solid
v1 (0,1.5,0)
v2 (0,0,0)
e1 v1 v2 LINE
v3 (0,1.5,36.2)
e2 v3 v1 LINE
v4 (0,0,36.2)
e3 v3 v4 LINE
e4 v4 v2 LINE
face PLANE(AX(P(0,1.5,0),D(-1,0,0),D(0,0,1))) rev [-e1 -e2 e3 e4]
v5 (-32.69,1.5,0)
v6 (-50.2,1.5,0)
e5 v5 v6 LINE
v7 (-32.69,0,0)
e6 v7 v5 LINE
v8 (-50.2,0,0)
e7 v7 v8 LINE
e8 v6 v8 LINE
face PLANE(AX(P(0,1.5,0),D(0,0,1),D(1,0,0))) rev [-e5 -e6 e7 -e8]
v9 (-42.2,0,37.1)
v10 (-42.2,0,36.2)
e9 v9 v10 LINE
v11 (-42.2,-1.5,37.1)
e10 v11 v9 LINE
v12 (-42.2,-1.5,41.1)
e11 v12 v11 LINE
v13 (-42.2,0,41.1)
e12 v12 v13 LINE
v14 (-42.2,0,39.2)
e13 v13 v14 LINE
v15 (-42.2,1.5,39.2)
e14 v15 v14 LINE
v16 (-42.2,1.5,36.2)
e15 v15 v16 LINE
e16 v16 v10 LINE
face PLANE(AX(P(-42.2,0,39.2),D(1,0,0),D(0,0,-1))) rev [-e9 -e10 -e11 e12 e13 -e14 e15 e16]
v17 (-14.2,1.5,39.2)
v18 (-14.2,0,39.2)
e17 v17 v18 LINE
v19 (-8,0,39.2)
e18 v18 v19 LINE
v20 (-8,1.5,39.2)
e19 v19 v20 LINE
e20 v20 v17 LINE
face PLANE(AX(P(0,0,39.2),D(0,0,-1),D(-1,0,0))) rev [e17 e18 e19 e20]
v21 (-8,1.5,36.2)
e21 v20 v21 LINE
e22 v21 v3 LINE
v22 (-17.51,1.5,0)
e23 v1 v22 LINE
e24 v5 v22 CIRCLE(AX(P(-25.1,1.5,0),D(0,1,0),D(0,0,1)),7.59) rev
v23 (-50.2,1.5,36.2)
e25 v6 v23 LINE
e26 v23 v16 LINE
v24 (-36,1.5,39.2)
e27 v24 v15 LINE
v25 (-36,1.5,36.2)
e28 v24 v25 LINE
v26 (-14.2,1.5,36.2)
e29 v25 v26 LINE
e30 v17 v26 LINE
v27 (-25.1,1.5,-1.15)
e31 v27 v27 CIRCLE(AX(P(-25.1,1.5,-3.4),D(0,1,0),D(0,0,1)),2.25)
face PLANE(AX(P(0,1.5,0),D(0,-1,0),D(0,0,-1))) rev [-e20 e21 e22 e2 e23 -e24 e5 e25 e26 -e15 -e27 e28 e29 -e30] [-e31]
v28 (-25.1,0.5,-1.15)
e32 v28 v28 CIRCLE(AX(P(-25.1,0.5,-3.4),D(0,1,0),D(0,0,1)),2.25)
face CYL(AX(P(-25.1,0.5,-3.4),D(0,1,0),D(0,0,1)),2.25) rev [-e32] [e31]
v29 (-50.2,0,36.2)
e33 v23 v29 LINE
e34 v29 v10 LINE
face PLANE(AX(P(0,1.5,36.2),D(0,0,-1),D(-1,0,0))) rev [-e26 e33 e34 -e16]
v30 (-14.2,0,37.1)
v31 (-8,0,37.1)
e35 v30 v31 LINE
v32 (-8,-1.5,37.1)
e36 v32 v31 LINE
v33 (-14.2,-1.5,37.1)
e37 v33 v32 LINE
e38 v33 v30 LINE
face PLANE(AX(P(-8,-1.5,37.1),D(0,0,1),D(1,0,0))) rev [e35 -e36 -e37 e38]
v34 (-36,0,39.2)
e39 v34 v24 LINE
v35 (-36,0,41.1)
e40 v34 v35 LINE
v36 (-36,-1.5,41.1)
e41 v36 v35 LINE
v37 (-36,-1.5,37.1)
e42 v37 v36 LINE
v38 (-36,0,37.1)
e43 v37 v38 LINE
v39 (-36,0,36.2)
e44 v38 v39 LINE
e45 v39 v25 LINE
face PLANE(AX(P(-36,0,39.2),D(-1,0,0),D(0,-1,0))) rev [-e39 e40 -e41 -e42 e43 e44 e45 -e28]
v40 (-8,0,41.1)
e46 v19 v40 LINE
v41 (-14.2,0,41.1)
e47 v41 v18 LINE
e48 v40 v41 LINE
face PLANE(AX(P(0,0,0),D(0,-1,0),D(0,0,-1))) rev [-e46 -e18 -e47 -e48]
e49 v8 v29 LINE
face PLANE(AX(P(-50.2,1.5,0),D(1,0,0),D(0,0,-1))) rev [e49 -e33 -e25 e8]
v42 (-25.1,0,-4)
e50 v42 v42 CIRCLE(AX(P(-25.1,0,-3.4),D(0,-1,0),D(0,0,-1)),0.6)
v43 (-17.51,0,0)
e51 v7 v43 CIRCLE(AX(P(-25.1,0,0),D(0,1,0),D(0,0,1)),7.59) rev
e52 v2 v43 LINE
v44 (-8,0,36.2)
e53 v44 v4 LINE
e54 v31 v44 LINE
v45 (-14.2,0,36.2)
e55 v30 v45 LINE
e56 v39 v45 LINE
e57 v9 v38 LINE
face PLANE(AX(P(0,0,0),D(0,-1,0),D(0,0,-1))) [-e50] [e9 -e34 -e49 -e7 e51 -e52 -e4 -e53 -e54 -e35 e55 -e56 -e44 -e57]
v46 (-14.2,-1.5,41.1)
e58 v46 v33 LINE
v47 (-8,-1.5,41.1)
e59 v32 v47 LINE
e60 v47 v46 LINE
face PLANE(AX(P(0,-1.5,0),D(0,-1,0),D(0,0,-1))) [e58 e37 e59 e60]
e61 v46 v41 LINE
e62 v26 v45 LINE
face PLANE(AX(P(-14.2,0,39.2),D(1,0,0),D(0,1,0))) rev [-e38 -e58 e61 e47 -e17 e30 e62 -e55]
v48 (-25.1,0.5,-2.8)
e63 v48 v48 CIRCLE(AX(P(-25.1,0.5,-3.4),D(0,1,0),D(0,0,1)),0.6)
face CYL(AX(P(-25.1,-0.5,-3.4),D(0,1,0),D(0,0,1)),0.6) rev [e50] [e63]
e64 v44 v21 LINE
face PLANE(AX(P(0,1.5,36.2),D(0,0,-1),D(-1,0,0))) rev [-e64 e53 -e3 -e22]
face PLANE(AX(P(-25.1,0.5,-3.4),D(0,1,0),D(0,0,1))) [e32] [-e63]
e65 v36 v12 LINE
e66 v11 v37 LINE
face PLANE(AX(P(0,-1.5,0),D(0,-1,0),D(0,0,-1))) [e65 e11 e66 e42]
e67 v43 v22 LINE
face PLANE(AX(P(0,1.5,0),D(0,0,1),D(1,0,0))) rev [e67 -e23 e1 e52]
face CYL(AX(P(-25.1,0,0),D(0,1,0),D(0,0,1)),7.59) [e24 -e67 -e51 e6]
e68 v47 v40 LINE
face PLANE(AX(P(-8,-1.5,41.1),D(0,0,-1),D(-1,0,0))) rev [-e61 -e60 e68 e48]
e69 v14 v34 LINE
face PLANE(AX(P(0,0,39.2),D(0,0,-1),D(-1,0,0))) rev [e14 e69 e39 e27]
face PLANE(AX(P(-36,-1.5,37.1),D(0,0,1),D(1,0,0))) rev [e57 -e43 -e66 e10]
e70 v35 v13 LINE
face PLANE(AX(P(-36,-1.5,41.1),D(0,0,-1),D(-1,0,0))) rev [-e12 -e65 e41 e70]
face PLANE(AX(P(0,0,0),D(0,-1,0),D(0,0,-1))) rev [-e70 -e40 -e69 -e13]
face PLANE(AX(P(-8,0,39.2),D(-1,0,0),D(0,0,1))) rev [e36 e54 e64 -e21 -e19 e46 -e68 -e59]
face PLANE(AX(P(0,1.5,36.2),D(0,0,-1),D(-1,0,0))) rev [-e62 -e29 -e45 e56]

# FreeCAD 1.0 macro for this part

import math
import FreeCAD as App
import Part
import Sketcher

V = App.Vector

doc = App.newDocument("Part")
params = doc.addObject("Spreadsheet::Sheet", "Params")
for row, (alias, value) in enumerate([
    ("sketch1_width", "50.2 mm"),
    ("sketch1_height", "36.2 mm"),
    ("pad1_length", "1.5 mm"),
    ("sketch2_width", "6.2 mm"),
    ("sketch2_height", "1.5 mm"),
    ("pad2_length", "3 mm"),
    ("sketch3_radius", "7.59 mm"),
    ("pad3_length", "1.5 mm"),
    ("sketch4_diameter", "4.5 mm"),
    ("pocket1_length", "1 mm"),
    ("sketch5_diameter", "1.2 mm"),
    ("pocket2_length", "1 mm"),
    ("sketch6_height", "4 mm"),
    ("sketch6_width", "6.2 mm"),
    ("pad4_length", "1.5 mm"),
], start=1):
    params.set(f"A{row}", alias)
    params.set(f"B{row}", "=" + value)
    params.setAlias(f"B{row}", alias)

body = doc.addObject("PartDesign::Body", "Body")

# Sketch on XZ plane
sketch1 = body.newObject("Sketcher::SketchObject", "Sketch")
sketch1.AttachmentSupport = (doc.getObject("XZ_Plane"), [""])
sketch1.MapMode = "FlatFace"
sketch1.addGeometry([
    Part.LineSegment(V(-50, 0, 0), V(-50, 36, 0)),
    Part.LineSegment(V(-50, 36, 0), V(0, 36, 0)),
    Part.LineSegment(V(0, 36, 0), V(0, 0, 0)),
    Part.LineSegment(V(0, 0, 0), V(-50, 0, 0)),
], False)
sketch1.addConstraint([
    Sketcher.Constraint("Coincident", 0, 2, 1, 1),
    Sketcher.Constraint("Coincident", 1, 2, 2, 1),
    Sketcher.Constraint("Coincident", 2, 2, 3, 1),
    Sketcher.Constraint("Coincident", 3, 2, 0, 1),
    Sketcher.Constraint("Vertical", 0),
    Sketcher.Constraint("Horizontal", 1),
    Sketcher.Constraint("Vertical", 2),
    Sketcher.Constraint("Horizontal", 3),
    Sketcher.Constraint("Coincident", 2, 2, -1, 1),
    Sketcher.Constraint("DistanceX", 1, 1, 1, 2, 50.2),
    Sketcher.Constraint("DistanceY", 0, 1, 0, 2, 36.2),
])
sketch1.setExpression("Constraints[9]", "Params.sketch1_width")
sketch1.setExpression("Constraints[10]", "Params.sketch1_height")
pad1 = body.newObject("PartDesign::Pad", "Pad")
pad1.Profile = sketch1
pad1.setExpression("Length", "Params.pad1_length")
pad1.Reversed = True

# Sketch on XY plane
sketch2 = body.newObject("Sketcher::SketchObject", "Sketch001")
sketch2.AttachmentSupport = (doc.getObject("XY_Plane"), [""])
sketch2.MapMode = "FlatFace"
sketch2.AttachmentOffset = App.Placement(V(0, 0, 36.2), App.Rotation())
sketch2.addGeometry([
    Part.LineSegment(V(-42.2, 1.5, 0), V(-42.2, 0, 0)),  # 0
    Part.LineSegment(V(-42.2, 0, 0), V(-36, 0, 0)),  # 1
    Part.LineSegment(V(-36, 0, 0), V(-36, 1.5, 0)),  # 2
    Part.LineSegment(V(-36, 1.5, 0), V(-42.2, 1.5, 0)),  # 3
    Part.LineSegment(V(-14.2, 1.5, 0), V(-14.2, 0, 0)),  # 4
    Part.LineSegment(V(-14.2, 0, 0), V(-8, 0, 0)),  # 5
    Part.LineSegment(V(-8, 0, 0), V(-8, 1.5, 0)),  # 6
    Part.LineSegment(V(-8, 1.5, 0), V(-14.2, 1.5, 0)),  # 7
], False)
sketch2.addConstraint([
    Sketcher.Constraint("Coincident", 0, 2, 1, 1),
    Sketcher.Constraint("Coincident", 1, 2, 2, 1),
    Sketcher.Constraint("Coincident", 2, 2, 3, 1),
    Sketcher.Constraint("Coincident", 3, 2, 0, 1),
    Sketcher.Constraint("Coincident", 4, 2, 5, 1),
    Sketcher.Constraint("Coincident", 5, 2, 6, 1),
    Sketcher.Constraint("Coincident", 6, 2, 7, 1),
    Sketcher.Constraint("Coincident", 7, 2, 4, 1),
    Sketcher.Constraint("Vertical", 0),
    Sketcher.Constraint("Horizontal", 1),
    Sketcher.Constraint("Vertical", 2),
    Sketcher.Constraint("Horizontal", 3),
    Sketcher.Constraint("Vertical", 4),
    Sketcher.Constraint("Horizontal", 5),
    Sketcher.Constraint("Vertical", 6),
    Sketcher.Constraint("Horizontal", 7),
    Sketcher.Constraint("PointOnObject", 0, 2, -1),
    Sketcher.Constraint("PointOnObject", 4, 2, -1),
    Sketcher.Constraint("Horizontal", 3, 2, 6, 2),
    Sketcher.Constraint("Equal", 3, 5),
    Sketcher.Constraint("DistanceX", 1, 1, 1, 2, 6.2),
    Sketcher.Constraint("DistanceY", 0, 2, 0, 1, 1.5),
    Sketcher.Constraint("DistanceX", 1, 2, -1, 1, 36.0),
    Sketcher.Constraint("DistanceX", 5, 2, -1, 1, 8.0),
])
sketch2.setExpression("Constraints[20]", "Params.sketch2_width")
sketch2.setExpression("Constraints[21]", "Params.sketch2_height")
pad2 = body.newObject("PartDesign::Pad", "Pad001")
pad2.Profile = sketch2
pad2.setExpression("Length", "Params.pad2_length")

# Sketch on XZ plane
sketch3 = body.newObject("Sketcher::SketchObject", "Sketch002")
sketch3.AttachmentSupport = (doc.getObject("XZ_Plane"), [""])
sketch3.MapMode = "FlatFace"
sketch3.AttachmentOffset = App.Placement(V(0, 0, -1.5), App.Rotation())
sketch3.addGeometry([
    Part.LineSegment(V(-33, 0, 0), V(-18, 0, 0)),
    Part.ArcOfCircle(Part.Circle(V(-25, 0, 0), V(0, 0, 1), 8), math.radians(180), math.radians(360)),
], False)
sketch3.addConstraint([
    Sketcher.Constraint("Coincident", 0, 1, 1, 1),
    Sketcher.Constraint("Coincident", 1, 2, 0, 2),
    Sketcher.Constraint("Horizontal", 0),
    Sketcher.Constraint("PointOnObject", 1, 3, -1),
    Sketcher.Constraint("PointOnObject", 0, 1, -1),
    Sketcher.Constraint("Radius", 1, 7.59),
    Sketcher.Constraint("DistanceX", 1, 3, -1, 1, 25.1),
])
sketch3.setExpression("Constraints[5]", "Params.sketch3_radius")
pad3 = body.newObject("PartDesign::Pad", "Pad002")
pad3.Profile = sketch3
pad3.setExpression("Length", "Params.pad3_length")

# Sketch on XZ plane
sketch4 = body.newObject("Sketcher::SketchObject", "Sketch003")
sketch4.AttachmentSupport = (doc.getObject("XZ_Plane"), [""])
sketch4.MapMode = "FlatFace"
sketch4.AttachmentOffset = App.Placement(V(0, 0, -1.5), App.Rotation())
sketch4.addGeometry(Part.Circle(V(-25.1, -3.4, 0), V(0, 0, 1), 2.2), False)
sketch4.addConstraint([
    Sketcher.Constraint("Diameter", 0, 4.5),
    Sketcher.Constraint("DistanceX", 0, 3, -1, 1, 25.1),
    Sketcher.Constraint("DistanceY", 0, 3, -1, 1, 3.4),
])
sketch4.setExpression("Constraints[0]", "Params.sketch4_diameter")
pocket1 = body.newObject("PartDesign::Pocket", "Pocket")
pocket1.Profile = sketch4
pocket1.setExpression("Length", "Params.pocket1_length")
pocket1.Reversed = True

# Sketch on XZ plane
sketch5 = body.newObject("Sketcher::SketchObject", "Sketch004")
sketch5.AttachmentSupport = (doc.getObject("XZ_Plane"), [""])
sketch5.MapMode = "FlatFace"
sketch5.AttachmentOffset = App.Placement(V(0, 0, -0.5), App.Rotation())
sketch5.addGeometry(Part.Circle(V(-25.1, -3.4, 0), V(0, 0, 1), 0.6), False)
sketch5.addConstraint([
    Sketcher.Constraint("Diameter", 0, 1.2),
    Sketcher.Constraint("DistanceX", 0, 3, -1, 1, 25.1),
    Sketcher.Constraint("DistanceY", 0, 3, -1, 1, 3.4),
])
sketch5.setExpression("Constraints[0]", "Params.sketch5_diameter")
pocket2 = body.newObject("PartDesign::Pocket", "Pocket001")
pocket2.Profile = sketch5
pocket2.setExpression("Length", "Params.pocket2_length")
pocket2.Reversed = True

# Sketch on XZ plane
sketch6 = body.newObject("Sketcher::SketchObject", "Sketch005")
sketch6.AttachmentSupport = (doc.getObject("XZ_Plane"), [""])
sketch6.MapMode = "FlatFace"
sketch6.addGeometry([
    Part.LineSegment(V(-42.2, 41.1, 0), V(-42.2, 37.1, 0)),  # 0
    Part.LineSegment(V(-42.2, 37.1, 0), V(-36, 37.1, 0)),  # 1
    Part.LineSegment(V(-36, 37.1, 0), V(-36, 41.1, 0)),  # 2
    Part.LineSegment(V(-36, 41.1, 0), V(-42.2, 41.1, 0)),  # 3
    Part.LineSegment(V(-14.2, 41.1, 0), V(-14.2, 37.1, 0)),  # 4
    Part.LineSegment(V(-14.2, 37.1, 0), V(-8, 37.1, 0)),  # 5
    Part.LineSegment(V(-8, 37.1, 0), V(-8, 41.1, 0)),  # 6
    Part.LineSegment(V(-8, 41.1, 0), V(-14.2, 41.1, 0)),  # 7
], False)
sketch6.addConstraint([
    Sketcher.Constraint("Coincident", 0, 2, 1, 1),
    Sketcher.Constraint("Coincident", 1, 2, 2, 1),
    Sketcher.Constraint("Coincident", 2, 2, 3, 1),
    Sketcher.Constraint("Coincident", 3, 2, 0, 1),
    Sketcher.Constraint("Coincident", 4, 2, 5, 1),
    Sketcher.Constraint("Coincident", 5, 2, 6, 1),
    Sketcher.Constraint("Coincident", 6, 2, 7, 1),
    Sketcher.Constraint("Coincident", 7, 2, 4, 1),
    Sketcher.Constraint("Vertical", 0),
    Sketcher.Constraint("Horizontal", 1),
    Sketcher.Constraint("Vertical", 2),
    Sketcher.Constraint("Horizontal", 3),
    Sketcher.Constraint("Vertical", 4),
    Sketcher.Constraint("Horizontal", 5),
    Sketcher.Constraint("Vertical", 6),
    Sketcher.Constraint("Horizontal", 7),
    Sketcher.Constraint("Horizontal", 1, 2, 4, 2),
    Sketcher.Constraint("Horizontal", 3, 2, 6, 2),
    Sketcher.Constraint("Equal", 3, 5),
    Sketcher.Constraint("DistanceY", 0, 2, 0, 1, 4.0),
    Sketcher.Constraint("DistanceX", 1, 1, 1, 2, 6.2),
    Sketcher.Constraint("DistanceX", 1, 2, -1, 1, 36.0),
    Sketcher.Constraint("DistanceX", 5, 2, -1, 1, 8.0),
    Sketcher.Constraint("DistanceY", -1, 1, 0, 2, 37.1),
])
sketch6.setExpression("Constraints[19]", "Params.sketch6_height")
sketch6.setExpression("Constraints[20]", "Params.sketch6_width")
pad4 = body.newObject("PartDesign::Pad", "Pad003")
pad4.Profile = sketch6
pad4.setExpression("Length", "Params.pad4_length")

doc.recompute()
